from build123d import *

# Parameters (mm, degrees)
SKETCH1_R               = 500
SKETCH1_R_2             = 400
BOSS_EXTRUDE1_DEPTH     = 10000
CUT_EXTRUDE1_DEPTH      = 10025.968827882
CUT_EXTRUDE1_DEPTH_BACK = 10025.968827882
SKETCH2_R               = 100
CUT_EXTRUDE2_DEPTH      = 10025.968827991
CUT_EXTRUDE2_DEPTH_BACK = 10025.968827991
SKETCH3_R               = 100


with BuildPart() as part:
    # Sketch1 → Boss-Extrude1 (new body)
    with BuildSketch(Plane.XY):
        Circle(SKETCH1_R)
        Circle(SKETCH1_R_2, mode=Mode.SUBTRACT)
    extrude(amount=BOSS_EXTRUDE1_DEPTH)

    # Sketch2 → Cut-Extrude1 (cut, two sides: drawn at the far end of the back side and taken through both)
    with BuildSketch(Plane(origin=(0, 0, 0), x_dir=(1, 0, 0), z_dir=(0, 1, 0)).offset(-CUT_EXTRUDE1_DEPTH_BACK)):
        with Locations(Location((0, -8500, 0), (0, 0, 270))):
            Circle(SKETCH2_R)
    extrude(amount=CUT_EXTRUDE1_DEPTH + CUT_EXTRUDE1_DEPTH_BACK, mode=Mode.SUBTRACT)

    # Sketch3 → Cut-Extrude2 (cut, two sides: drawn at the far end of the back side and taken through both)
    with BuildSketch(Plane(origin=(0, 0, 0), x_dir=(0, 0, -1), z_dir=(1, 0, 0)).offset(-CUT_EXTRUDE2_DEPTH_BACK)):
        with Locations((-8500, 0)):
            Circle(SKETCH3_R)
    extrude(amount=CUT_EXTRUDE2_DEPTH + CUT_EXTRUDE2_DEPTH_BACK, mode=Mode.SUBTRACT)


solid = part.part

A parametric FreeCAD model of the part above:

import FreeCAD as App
import Part
import Sketcher

doc = App.newDocument("Part")
body = doc.addObject("PartDesign::Body", "Body")

# Sketch on XY plane
sketch1 = doc.addObject("Sketcher::SketchObject", "Sketch")
body.addObject(sketch1)
sketch1.AttachmentSupport = (doc.XY_Plane, [""])
sketch1.MapMode = "FlatFace"
sketch1.addGeometry(Part.Circle(App.Vector(0, 0, 0), App.Vector(0, 0, 1), 500), False)
sketch1.addGeometry(Part.Circle(App.Vector(0, 0, 0), App.Vector(0, 0, 1), 400), False)
sketch1.addConstraint(Sketcher.Constraint("Coincident", 0, 3, -1, 1))
sketch1.addConstraint(Sketcher.Constraint("Coincident", 1, 3, -1, 1))
sketch1.addConstraint(Sketcher.Constraint("Diameter", 0, 1000.0))
sketch1.addConstraint(Sketcher.Constraint("Diameter", 1, 800.0))
pad1 = doc.addObject("PartDesign::Pad", "Pad")
body.addObject(pad1)
pad1.Profile = sketch1
pad1.Length = 10000

# Sketch on XZ plane
sketch2 = doc.addObject("Sketcher::SketchObject", "Sketch001")
body.addObject(sketch2)
sketch2.AttachmentSupport = (doc.XZ_Plane, [""])
sketch2.MapMode = "FlatFace"
sketch2.addGeometry(Part.Circle(App.Vector(0, 8500, 0), App.Vector(0, 0, 1), 100), False)
sketch2.addConstraint(Sketcher.Constraint("PointOnObject", 0, 3, -2))
sketch2.addConstraint(Sketcher.Constraint("Diameter", 0, 200.0))
sketch2.addConstraint(Sketcher.Constraint("DistanceY", -1, 1, 0, 3, 8500.0))
pocket1 = doc.addObject("PartDesign::Pocket", "Pocket")
body.addObject(pocket1)
pocket1.Profile = sketch2
pocket1.Type = "ThroughAll"
pocket1.Midplane = True

# Sketch on YZ plane
sketch3 = doc.addObject("Sketcher::SketchObject", "Sketch002")
body.addObject(sketch3)
sketch3.AttachmentSupport = (doc.YZ_Plane, [""])
sketch3.MapMode = "FlatFace"
sketch3.addGeometry(Part.Circle(App.Vector(0, 8500, 0), App.Vector(0, 0, 1), 100), False)
sketch3.addConstraint(Sketcher.Constraint("PointOnObject", 0, 3, -2))
sketch3.addConstraint(Sketcher.Constraint("Diameter", 0, 200.0))
sketch3.addConstraint(Sketcher.Constraint("DistanceY", -1, 1, 0, 3, 8500.0))
pocket2 = doc.addObject("PartDesign::Pocket", "Pocket001")
body.addObject(pocket2)
pocket2.Profile = sketch3
pocket2.Type = "ThroughAll"
pocket2.Midplane = True

doc.recompute()
